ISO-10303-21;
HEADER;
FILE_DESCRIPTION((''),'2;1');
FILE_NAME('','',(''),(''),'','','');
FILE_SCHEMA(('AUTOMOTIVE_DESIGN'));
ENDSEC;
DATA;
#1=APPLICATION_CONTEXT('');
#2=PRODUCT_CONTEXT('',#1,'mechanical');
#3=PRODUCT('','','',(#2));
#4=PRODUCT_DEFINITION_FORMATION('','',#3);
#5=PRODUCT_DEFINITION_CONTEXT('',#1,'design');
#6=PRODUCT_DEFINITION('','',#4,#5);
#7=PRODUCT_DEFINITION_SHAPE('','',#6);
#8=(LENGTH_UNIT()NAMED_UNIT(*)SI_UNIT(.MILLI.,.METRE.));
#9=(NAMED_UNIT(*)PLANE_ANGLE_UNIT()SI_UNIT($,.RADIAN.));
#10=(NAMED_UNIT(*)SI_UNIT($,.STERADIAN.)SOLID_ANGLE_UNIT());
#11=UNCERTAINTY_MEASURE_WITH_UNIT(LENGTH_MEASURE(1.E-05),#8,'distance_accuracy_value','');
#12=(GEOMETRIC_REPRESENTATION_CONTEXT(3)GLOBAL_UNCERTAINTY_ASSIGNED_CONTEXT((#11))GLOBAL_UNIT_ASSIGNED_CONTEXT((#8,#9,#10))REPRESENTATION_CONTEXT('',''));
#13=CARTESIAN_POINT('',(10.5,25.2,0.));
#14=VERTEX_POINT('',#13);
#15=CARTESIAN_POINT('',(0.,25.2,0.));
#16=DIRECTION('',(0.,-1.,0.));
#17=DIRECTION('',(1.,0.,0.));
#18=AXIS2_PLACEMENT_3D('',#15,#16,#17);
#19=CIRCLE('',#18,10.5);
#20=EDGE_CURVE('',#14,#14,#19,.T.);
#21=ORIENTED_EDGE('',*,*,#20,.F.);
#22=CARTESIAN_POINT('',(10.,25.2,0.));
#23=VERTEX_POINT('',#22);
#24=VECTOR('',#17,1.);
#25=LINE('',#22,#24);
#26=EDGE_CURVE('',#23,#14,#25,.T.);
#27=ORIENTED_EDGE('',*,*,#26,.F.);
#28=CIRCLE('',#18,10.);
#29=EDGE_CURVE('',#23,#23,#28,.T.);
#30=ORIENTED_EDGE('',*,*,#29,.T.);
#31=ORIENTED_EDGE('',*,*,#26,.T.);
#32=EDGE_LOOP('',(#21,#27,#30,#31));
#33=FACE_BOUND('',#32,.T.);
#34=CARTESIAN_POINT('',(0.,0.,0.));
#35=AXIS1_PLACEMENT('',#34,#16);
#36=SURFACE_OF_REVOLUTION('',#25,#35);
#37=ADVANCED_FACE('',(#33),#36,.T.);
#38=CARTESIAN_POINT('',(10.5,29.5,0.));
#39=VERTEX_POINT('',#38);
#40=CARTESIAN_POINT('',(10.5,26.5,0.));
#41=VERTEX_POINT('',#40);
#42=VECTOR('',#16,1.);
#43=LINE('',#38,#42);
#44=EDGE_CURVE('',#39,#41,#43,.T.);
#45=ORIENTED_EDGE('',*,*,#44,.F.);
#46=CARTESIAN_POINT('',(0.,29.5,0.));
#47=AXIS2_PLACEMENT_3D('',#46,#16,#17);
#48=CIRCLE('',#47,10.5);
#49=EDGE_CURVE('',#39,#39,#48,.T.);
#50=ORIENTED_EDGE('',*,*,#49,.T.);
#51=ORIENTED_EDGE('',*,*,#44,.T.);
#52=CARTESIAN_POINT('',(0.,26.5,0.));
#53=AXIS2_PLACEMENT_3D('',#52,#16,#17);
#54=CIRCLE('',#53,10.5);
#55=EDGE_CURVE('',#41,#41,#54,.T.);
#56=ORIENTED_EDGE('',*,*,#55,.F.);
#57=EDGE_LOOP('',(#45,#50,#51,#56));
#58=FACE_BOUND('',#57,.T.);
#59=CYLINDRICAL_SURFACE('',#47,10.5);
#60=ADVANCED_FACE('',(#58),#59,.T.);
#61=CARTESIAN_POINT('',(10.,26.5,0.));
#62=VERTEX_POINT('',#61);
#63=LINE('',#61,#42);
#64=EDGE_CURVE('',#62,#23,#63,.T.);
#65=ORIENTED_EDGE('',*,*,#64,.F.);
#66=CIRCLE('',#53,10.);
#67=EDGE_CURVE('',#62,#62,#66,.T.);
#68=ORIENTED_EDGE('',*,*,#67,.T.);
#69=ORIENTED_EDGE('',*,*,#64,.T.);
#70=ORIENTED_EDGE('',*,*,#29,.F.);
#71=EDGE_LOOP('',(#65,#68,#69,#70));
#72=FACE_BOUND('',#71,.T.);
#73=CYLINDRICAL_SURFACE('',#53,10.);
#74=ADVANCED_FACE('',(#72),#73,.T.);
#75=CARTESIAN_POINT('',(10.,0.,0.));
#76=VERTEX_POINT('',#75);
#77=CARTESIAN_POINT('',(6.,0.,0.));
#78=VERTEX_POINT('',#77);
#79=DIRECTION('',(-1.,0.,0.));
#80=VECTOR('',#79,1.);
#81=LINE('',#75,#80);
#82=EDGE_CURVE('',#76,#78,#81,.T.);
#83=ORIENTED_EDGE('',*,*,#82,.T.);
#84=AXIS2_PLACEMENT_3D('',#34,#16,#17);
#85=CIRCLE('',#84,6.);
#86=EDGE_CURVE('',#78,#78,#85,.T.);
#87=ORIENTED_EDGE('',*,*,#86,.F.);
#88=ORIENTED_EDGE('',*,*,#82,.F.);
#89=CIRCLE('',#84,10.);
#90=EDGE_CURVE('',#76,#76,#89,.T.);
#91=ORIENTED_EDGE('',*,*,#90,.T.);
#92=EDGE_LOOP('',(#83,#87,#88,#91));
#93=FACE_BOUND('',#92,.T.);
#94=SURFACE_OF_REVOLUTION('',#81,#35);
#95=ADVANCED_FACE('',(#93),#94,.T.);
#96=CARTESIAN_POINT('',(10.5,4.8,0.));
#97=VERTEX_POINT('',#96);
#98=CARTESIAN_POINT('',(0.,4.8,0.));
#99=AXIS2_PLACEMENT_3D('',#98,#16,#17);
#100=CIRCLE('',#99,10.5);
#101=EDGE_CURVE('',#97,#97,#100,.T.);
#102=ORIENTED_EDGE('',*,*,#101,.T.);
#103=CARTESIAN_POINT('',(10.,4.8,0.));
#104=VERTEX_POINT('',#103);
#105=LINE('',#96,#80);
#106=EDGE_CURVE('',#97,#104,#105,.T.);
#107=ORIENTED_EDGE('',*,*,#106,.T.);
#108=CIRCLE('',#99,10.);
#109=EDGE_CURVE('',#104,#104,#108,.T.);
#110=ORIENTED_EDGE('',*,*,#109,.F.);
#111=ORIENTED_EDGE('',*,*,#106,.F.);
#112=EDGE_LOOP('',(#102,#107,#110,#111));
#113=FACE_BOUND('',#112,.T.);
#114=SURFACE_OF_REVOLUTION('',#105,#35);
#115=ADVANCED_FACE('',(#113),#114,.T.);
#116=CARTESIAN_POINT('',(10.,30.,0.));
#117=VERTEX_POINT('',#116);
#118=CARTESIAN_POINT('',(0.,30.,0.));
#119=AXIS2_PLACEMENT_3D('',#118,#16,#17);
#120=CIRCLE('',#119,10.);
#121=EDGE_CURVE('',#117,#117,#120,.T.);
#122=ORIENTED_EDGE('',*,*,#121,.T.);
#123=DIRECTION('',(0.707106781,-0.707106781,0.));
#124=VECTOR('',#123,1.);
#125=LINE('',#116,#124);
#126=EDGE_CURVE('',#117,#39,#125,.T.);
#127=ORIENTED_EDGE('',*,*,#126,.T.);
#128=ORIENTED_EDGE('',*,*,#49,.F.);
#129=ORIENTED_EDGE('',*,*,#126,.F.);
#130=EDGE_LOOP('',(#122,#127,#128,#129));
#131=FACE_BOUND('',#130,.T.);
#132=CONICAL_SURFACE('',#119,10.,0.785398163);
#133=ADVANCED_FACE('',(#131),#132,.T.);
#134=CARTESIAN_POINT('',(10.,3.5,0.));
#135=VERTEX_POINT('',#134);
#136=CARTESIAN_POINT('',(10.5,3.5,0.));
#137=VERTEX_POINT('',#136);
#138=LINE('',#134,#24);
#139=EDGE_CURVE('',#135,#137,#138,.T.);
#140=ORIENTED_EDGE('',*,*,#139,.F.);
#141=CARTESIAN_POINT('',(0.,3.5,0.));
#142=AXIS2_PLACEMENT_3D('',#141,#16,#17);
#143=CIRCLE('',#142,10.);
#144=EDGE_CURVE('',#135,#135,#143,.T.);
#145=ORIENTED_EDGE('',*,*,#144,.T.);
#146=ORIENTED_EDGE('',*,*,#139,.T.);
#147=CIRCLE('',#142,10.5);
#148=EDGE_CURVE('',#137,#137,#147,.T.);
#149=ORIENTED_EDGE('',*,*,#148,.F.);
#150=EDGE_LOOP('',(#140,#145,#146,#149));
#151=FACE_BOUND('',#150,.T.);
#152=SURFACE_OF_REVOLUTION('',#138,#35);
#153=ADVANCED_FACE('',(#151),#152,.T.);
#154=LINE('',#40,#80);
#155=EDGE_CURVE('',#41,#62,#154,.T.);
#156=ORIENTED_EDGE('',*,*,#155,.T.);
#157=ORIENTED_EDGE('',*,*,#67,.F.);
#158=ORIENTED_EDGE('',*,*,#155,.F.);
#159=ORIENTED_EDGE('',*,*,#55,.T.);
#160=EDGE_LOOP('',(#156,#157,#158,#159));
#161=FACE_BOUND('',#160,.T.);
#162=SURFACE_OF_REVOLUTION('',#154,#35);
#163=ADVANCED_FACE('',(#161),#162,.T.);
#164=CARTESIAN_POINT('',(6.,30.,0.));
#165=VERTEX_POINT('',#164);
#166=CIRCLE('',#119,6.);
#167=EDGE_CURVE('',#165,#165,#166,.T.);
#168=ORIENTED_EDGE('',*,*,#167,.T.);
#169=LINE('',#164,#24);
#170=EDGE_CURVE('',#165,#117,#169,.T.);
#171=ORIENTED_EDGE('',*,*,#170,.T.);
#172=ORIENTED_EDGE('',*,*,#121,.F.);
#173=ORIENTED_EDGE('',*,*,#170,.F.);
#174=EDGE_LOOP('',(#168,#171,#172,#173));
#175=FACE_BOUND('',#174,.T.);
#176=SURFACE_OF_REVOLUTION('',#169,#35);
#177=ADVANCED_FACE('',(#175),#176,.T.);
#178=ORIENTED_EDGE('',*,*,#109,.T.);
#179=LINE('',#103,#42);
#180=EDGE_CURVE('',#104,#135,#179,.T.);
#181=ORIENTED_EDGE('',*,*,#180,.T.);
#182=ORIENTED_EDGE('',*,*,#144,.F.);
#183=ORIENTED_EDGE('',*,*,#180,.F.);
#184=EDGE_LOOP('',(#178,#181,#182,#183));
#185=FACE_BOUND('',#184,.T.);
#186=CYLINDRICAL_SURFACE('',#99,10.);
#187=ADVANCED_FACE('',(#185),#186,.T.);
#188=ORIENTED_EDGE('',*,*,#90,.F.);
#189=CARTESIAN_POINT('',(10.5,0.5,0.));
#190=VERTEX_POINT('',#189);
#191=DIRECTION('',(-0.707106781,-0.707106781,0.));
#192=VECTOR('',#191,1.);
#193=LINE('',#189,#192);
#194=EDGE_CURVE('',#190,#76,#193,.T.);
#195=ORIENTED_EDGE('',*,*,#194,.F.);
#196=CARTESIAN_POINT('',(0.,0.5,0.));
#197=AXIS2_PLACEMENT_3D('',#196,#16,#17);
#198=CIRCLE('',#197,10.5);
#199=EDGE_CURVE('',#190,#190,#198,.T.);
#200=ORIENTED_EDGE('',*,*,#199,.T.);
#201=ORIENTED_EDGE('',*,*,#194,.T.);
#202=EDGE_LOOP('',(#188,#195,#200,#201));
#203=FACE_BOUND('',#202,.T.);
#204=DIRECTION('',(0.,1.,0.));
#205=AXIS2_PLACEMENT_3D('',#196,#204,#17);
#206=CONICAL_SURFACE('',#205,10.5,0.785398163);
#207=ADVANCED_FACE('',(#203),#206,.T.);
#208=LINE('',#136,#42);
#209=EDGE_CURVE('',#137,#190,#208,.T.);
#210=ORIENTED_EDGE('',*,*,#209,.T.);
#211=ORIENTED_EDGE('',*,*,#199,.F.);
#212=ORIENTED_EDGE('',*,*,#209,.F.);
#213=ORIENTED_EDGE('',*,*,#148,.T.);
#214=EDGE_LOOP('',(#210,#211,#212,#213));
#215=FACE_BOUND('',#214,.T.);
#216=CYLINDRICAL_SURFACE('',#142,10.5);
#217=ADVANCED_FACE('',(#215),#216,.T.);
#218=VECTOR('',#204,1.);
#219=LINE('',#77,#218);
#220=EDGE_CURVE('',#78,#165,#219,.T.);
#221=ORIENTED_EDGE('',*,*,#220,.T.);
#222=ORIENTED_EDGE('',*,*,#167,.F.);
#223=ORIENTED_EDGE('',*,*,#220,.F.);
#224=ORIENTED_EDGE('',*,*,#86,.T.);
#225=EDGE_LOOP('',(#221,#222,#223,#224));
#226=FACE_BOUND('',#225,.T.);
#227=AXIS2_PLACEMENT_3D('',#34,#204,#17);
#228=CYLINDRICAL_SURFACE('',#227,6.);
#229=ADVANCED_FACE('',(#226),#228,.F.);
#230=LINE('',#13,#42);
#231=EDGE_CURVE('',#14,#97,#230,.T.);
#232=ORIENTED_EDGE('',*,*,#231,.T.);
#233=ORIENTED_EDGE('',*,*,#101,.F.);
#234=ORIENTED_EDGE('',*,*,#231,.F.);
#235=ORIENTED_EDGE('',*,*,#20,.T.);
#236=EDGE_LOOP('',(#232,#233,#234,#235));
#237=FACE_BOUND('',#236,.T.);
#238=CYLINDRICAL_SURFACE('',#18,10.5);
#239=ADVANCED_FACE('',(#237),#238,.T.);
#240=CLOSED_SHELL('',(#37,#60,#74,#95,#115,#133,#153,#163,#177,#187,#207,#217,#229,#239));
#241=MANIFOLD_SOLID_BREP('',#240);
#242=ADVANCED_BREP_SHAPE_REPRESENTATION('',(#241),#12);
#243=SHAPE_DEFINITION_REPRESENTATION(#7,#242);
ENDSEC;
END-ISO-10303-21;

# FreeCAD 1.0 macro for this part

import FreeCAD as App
import Part
import Sketcher

V = App.Vector

doc = App.newDocument("Part")
body = doc.addObject("PartDesign::Body", "Body")

sketch1 = body.newObject("Sketcher::SketchObject", "Sketch")
sketch1.AttachmentSupport = (doc.getObject("YZ_Plane"), [""])
sketch1.MapMode = "FlatFace"
sketch1.addGeometry([
    Part.LineSegment(V(0, 10, 0), V(0, 6, 0)),
    Part.LineSegment(V(0, 6, 0), V(30, 6, 0)),
    Part.LineSegment(V(30, 6, 0), V(30, 10, 0)),
    Part.LineSegment(V(30, 10, 0), V(29.5, 10.5, 0)),
    Part.LineSegment(V(29.5, 10.5, 0), V(26.5, 10.5, 0)),
    Part.LineSegment(V(26.5, 10.5, 0), V(26.5, 10, 0)),
    Part.LineSegment(V(26.5, 10, 0), V(25.2, 10, 0)),
    Part.LineSegment(V(25.2, 10, 0), V(25.2, 10.5, 0)),
    Part.LineSegment(V(25.2, 10.5, 0), V(4.8, 10.5, 0)),
    Part.LineSegment(V(4.8, 10.5, 0), V(4.8, 10, 0)),
    Part.LineSegment(V(4.8, 10, 0), V(3.5, 10, 0)),
    Part.LineSegment(V(3.5, 10, 0), V(3.5, 10.5, 0)),
    Part.LineSegment(V(3.5, 10.5, 0), V(0.5, 10.5, 0)),
    Part.LineSegment(V(0.5, 10.5, 0), V(0, 10, 0)),
], False)
sketch1.addConstraint([
    Sketcher.Constraint("Coincident", 0, 2, 1, 1),
    Sketcher.Constraint("Coincident", 1, 2, 2, 1),
    Sketcher.Constraint("Coincident", 2, 2, 3, 1),
    Sketcher.Constraint("Coincident", 3, 2, 4, 1),
    Sketcher.Constraint("Coincident", 4, 2, 5, 1),
    Sketcher.Constraint("Coincident", 5, 2, 6, 1),
    Sketcher.Constraint("Coincident", 6, 2, 7, 1),
    Sketcher.Constraint("Coincident", 7, 2, 8, 1),
    Sketcher.Constraint("Coincident", 8, 2, 9, 1),
    Sketcher.Constraint("Coincident", 9, 2, 10, 1),
    Sketcher.Constraint("Coincident", 10, 2, 11, 1),
    Sketcher.Constraint("Coincident", 11, 2, 12, 1),
    Sketcher.Constraint("Coincident", 12, 2, 13, 1),
    Sketcher.Constraint("Coincident", 13, 2, 0, 1),
    Sketcher.Constraint("Vertical", 0),
    Sketcher.Constraint("Horizontal", 1),
    Sketcher.Constraint("Vertical", 2),
    Sketcher.Constraint("Horizontal", 4),
    Sketcher.Constraint("Vertical", 5),
    Sketcher.Constraint("Horizontal", 6),
    Sketcher.Constraint("Vertical", 7),
    Sketcher.Constraint("Horizontal", 8),
    Sketcher.Constraint("Vertical", 9),
    Sketcher.Constraint("Horizontal", 10),
    Sketcher.Constraint("Vertical", 11),
    Sketcher.Constraint("Horizontal", 12),
    Sketcher.Constraint("PointOnObject", 0, 2, -2),
    Sketcher.Constraint("Perpendicular", 3, 13),
    Sketcher.Constraint("Horizontal", 2, 2, 5, 2),
    Sketcher.Constraint("Horizontal", 4, 2, 7, 2),
    Sketcher.Constraint("Horizontal", 6, 2, 9, 2),
    Sketcher.Constraint("Horizontal", 8, 2, 11, 2),
    Sketcher.Constraint("Horizontal", 10, 2, 13, 2),
    Sketcher.Constraint("Equal", 6, 10),
    Sketcher.Constraint("Equal", 4, 12),
    Sketcher.Constraint("Equal", 3, 13),
    Sketcher.Constraint("DistanceX", 1, 1, 1, 2, 30.0),
    Sketcher.Constraint("DistanceX", 4, 2, 4, 1, 3.0),
    Sketcher.Constraint("DistanceY", 0, 2, 0, 1, 4.0),
    Sketcher.Constraint("DistanceX", 6, 2, 6, 1, 1.3),
    Sketcher.Constraint("DistanceX", 8, 2, 8, 1, 20.4),
    Sketcher.Constraint("DistanceY", -1, 1, 0, 2, 6.0),
])

sketch2 = body.newObject("Sketcher::SketchObject", "Sketch001")
sketch2.AttachmentSupport = (doc.getObject("XZ_Plane"), [""])
sketch2.MapMode = "FlatFace"
sketch2.addGeometry(Part.Circle(V(0, 0, 0), V(0, 0, 1), 6), False)
sketch2.addConstraint([
    Sketcher.Constraint("Coincident", 0, 3, -1, 1),
    Sketcher.Constraint("Diameter", 0, 12.0),
])
doc.recompute()

additivepipe = body.newObject("PartDesign::AdditivePipe", "AdditivePipe")
additivepipe.Profile = sketch1
additivepipe.Spine = (sketch2, ["Edge1"])

doc.recompute()
